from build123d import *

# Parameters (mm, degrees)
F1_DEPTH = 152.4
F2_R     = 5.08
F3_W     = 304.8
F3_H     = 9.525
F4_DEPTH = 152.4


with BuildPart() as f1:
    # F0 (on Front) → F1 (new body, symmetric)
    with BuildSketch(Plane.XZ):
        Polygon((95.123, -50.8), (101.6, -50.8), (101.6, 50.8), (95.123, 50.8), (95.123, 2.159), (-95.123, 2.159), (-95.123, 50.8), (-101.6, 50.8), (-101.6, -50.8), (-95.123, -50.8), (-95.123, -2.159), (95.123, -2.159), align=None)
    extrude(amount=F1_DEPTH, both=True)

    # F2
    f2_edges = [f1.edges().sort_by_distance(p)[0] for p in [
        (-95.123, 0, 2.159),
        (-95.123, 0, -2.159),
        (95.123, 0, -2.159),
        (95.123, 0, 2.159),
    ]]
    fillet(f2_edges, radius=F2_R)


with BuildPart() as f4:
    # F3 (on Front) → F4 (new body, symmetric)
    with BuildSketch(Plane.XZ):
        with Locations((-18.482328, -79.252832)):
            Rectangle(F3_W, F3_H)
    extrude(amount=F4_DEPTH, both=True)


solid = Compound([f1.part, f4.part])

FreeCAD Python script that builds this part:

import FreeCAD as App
import Part
import Sketcher

V = App.Vector
Q = App.Units.Quantity


def edges_at(feature, points):
    """Names of the edges that pass closest to the given points."""
    edges = feature.Shape.Edges
    near = lambda p: min(range(len(edges)), key=lambda i: edges[i].distToShape(Part.Vertex(*p))[0])
    return sorted({f"Edge{near(p) + 1}" for p in points})


def add_polygon(sketch, points):
    """Adds a closed chain of lines whose ends are joined by coincident constraints."""
    first, n = sketch.GeometryCount, len(points)
    for a, b in zip(points, points[1:] + points[:1]):
        sketch.addGeometry(Part.LineSegment(App.Vector(*a, 0), App.Vector(*b, 0)), False)
    for i in range(n):
        sketch.addConstraint(Sketcher.Constraint("Coincident", first + i, 2, first + (i + 1) % n, 1))

doc = App.newDocument("Part")
body = doc.addObject("PartDesign::Body", "Body")

# Sketch on XZ plane
sketch1 = body.newObject("Sketcher::SketchObject", "Sketch")
sketch1.AttachmentSupport = (doc.getObject("XZ_Plane"), [""])
sketch1.MapMode = "FlatFace"
add_polygon(sketch1, [(95, -51), (102, -51), (102, 51), (95, 51), (95, 2), (-95, 2), (-95, 51), (-102, 51), (-102, -51), (-95, -51), (-95, -2), (95, -2)])  # lines 0-11
sketch1.addConstraint(Sketcher.Constraint("Horizontal", 0))
sketch1.addConstraint(Sketcher.Constraint("Vertical", 1))
sketch1.addConstraint(Sketcher.Constraint("Horizontal", 2))
sketch1.addConstraint(Sketcher.Constraint("Vertical", 3))
sketch1.addConstraint(Sketcher.Constraint("Horizontal", 4))
sketch1.addConstraint(Sketcher.Constraint("Vertical", 5))
sketch1.addConstraint(Sketcher.Constraint("Horizontal", 6))
sketch1.addConstraint(Sketcher.Constraint("Vertical", 7))
sketch1.addConstraint(Sketcher.Constraint("Horizontal", 8))
sketch1.addConstraint(Sketcher.Constraint("Vertical", 9))
sketch1.addConstraint(Sketcher.Constraint("Horizontal", 10))
sketch1.addConstraint(Sketcher.Constraint("Vertical", 11))
sketch1.addConstraint(Sketcher.Constraint("Symmetric", 0, 2, 6, 2, -1, 1))
sketch1.addConstraint(Sketcher.Constraint("Symmetric", 2, 2, 8, 2, -1, 1))
sketch1.addConstraint(Sketcher.Constraint("Symmetric", 4, 2, 10, 2, -1, 1))
sketch1.addConstraint(Sketcher.Constraint("Symmetric", 2, 2, 5, 2, -2))
sketch1.addConstraint(Sketcher.Constraint("DistanceY", 1, 1, 1, 2, Q("4 in")))
sketch1.addConstraint(Sketcher.Constraint("DistanceX", -1, 1, 0, 2, Q("4 in")))
sketch1.addConstraint(Sketcher.Constraint("DistanceX", 4, 2, 4, 1, Q("7.49 in")))
sketch1.addConstraint(Sketcher.Constraint("DistanceY", 3, 2, 3, 1, Q("1.915 in")))
pad1 = body.newObject("PartDesign::Pad", "Pad")
pad1.Profile = sketch1
pad1.Length = Q("12 in")
pad1.Midplane = True
doc.recompute()

fillet = body.newObject("PartDesign::Fillet", "Fillet")
fillet.Base = (pad1, edges_at(pad1, [
    (-95.123, 0, 2.159),
    (-95.123, 0, -2.159),
    (95.123, 0, -2.159),
    (95.123, 0, 2.159),
]))
fillet.Radius = Q("0.2 in")
body2 = doc.addObject("PartDesign::Body", "Body001")

# Sketch on XZ plane
sketch2 = body2.newObject("Sketcher::SketchObject", "Sketch001")
sketch2.AttachmentSupport = (doc.getObject("XZ_Plane001"), [""])
sketch2.MapMode = "FlatFace"
add_polygon(sketch2, [(-171, -74), (-171, -84), (134, -84), (134, -74)])  # lines 0-3
sketch2.addConstraint(Sketcher.Constraint("Vertical", 0))
sketch2.addConstraint(Sketcher.Constraint("Horizontal", 1))
sketch2.addConstraint(Sketcher.Constraint("Vertical", 2))
sketch2.addConstraint(Sketcher.Constraint("Horizontal", 3))
sketch2.addConstraint(Sketcher.Constraint("DistanceX", 1, 1, 1, 2, Q("12 in")))
sketch2.addConstraint(Sketcher.Constraint("DistanceY", 0, 2, 0, 1, Q("0.375 in")))
sketch2.addConstraint(Sketcher.Constraint("DistanceX", 0, 2, -1, 1, 170.882328))
sketch2.addConstraint(Sketcher.Constraint("DistanceY", 0, 2, -1, 1, 84.015332))
pad2 = body2.newObject("PartDesign::Pad", "Pad001")
pad2.Profile = sketch2
pad2.Length = Q("12 in")
pad2.Midplane = True

doc.recompute()
